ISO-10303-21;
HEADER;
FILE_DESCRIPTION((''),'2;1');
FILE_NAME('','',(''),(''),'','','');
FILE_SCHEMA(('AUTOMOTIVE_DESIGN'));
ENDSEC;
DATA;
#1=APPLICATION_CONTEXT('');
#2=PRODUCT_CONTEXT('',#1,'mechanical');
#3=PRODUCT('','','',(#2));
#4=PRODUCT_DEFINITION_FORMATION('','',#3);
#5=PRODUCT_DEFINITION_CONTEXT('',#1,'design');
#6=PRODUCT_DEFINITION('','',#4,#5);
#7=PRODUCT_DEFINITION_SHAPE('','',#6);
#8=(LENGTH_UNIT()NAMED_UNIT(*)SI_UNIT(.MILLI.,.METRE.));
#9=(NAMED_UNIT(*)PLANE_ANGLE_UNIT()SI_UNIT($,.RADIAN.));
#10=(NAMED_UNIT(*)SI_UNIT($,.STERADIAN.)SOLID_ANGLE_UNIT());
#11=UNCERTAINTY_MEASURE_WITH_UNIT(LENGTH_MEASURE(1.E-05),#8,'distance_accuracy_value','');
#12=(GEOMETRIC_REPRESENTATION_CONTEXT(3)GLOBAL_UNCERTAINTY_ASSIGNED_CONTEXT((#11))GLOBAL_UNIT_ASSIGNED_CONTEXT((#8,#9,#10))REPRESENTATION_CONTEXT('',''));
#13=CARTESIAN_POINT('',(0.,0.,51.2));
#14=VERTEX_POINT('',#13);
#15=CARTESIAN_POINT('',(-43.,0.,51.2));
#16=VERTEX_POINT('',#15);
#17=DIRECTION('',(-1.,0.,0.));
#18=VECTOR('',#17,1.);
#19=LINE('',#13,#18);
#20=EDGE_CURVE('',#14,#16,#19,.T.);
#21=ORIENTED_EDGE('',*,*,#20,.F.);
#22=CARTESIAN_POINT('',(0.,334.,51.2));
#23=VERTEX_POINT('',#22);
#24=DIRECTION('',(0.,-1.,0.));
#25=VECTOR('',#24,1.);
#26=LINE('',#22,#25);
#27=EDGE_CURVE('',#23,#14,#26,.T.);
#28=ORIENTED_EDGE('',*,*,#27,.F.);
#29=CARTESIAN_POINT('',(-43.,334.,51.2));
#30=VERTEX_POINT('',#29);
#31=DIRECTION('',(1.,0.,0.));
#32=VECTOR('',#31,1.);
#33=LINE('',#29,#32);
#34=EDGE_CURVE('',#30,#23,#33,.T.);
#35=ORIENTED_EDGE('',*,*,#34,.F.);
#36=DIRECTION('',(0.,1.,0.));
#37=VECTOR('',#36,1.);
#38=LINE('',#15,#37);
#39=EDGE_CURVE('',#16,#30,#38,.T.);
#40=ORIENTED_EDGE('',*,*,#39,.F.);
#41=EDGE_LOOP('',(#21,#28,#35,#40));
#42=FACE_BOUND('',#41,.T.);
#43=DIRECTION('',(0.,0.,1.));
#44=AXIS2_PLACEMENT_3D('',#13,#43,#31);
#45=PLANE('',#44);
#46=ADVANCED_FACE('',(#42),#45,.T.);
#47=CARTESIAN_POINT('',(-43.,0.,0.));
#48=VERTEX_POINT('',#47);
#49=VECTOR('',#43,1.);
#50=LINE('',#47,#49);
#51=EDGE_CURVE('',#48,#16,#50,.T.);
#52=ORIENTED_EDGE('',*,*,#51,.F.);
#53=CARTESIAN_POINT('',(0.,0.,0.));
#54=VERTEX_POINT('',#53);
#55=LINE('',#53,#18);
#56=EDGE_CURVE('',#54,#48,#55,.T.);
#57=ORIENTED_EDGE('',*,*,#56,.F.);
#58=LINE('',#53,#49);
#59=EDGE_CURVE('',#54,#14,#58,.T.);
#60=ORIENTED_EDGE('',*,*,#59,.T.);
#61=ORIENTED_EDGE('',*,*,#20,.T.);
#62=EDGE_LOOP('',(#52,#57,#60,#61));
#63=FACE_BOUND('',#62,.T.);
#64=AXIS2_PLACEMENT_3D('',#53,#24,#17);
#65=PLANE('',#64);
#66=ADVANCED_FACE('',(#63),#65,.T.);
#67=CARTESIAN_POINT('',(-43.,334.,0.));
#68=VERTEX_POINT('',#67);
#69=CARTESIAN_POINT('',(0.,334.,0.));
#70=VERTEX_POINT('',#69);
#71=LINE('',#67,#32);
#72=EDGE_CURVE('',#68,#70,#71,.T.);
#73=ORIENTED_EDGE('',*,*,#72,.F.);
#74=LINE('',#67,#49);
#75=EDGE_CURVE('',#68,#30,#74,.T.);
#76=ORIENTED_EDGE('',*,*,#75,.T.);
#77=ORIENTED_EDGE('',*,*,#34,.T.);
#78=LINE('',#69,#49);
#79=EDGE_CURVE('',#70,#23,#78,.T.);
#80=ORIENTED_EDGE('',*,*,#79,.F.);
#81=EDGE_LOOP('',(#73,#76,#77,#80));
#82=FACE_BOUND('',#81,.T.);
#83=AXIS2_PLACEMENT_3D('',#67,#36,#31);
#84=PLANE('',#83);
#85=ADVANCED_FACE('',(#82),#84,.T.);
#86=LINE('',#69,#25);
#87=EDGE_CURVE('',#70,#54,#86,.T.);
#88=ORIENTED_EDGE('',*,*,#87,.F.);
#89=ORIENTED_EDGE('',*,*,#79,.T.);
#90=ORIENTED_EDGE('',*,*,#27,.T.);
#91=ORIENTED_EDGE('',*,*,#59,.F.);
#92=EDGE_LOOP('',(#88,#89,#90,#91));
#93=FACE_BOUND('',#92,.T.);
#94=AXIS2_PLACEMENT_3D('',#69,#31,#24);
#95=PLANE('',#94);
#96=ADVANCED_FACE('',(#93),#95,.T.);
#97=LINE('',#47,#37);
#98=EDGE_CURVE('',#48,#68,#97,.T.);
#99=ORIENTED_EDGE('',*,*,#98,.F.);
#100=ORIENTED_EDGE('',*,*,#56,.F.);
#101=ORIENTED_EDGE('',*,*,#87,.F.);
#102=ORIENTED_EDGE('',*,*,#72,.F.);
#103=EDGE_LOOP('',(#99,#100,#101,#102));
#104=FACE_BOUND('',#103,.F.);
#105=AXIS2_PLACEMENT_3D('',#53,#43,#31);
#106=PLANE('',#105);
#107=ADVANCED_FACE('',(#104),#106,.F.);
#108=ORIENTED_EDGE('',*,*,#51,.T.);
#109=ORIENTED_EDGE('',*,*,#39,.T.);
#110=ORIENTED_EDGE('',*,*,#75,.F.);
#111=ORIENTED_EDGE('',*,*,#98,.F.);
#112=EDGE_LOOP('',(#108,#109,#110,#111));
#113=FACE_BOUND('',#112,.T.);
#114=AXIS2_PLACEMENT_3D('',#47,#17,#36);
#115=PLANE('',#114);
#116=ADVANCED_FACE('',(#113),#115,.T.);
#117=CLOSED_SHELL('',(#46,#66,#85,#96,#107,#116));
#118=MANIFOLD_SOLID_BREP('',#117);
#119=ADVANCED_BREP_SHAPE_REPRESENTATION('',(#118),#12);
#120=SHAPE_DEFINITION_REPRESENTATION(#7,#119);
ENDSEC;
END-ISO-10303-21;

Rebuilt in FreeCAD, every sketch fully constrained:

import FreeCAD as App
import Part
import Sketcher
from FreeCAD import Vector
Q = App.Units.Quantity


def add_polygon(sketch, points):
    """Adds a closed chain of lines whose ends are joined by coincident constraints."""
    first, n = sketch.GeometryCount, len(points)
    for a, b in zip(points, points[1:] + points[:1]):
        sketch.addGeometry(Part.LineSegment(App.Vector(*a, 0), App.Vector(*b, 0)), False)
    for i in range(n):
        sketch.addConstraint(Sketcher.Constraint("Coincident", first + i, 2, first + (i + 1) % n, 1))

doc = App.newDocument("Part")
body = doc.addObject("PartDesign::Body", "Body")

# Sketch on XY plane
sketch1 = body.newObject("Sketcher::SketchObject", "Sketch")
sketch1.AttachmentSupport = (doc.getObject("XY_Plane"), [""])
sketch1.MapMode = "FlatFace"
add_polygon(sketch1, [(-43, 0), (0, 0), (0, 334), (-43, 334)])  # lines 0-3
sketch1.addConstraint([
    Sketcher.Constraint("Horizontal", 0),
    Sketcher.Constraint("Vertical", 1),
    Sketcher.Constraint("Horizontal", 2),
    Sketcher.Constraint("Vertical", 3),
    Sketcher.Constraint("Coincident", 0, 2, -1, 1),
    Sketcher.Constraint("DistanceX", 0, 1, 0, 2, Q("43 mm")),
    Sketcher.Constraint("DistanceY", 1, 1, 1, 2, Q("334 mm")),
])
pad1 = body.newObject("PartDesign::Pad", "Pad")
pad1.Profile = sketch1
pad1.Length = 51.2

doc.recompute()
